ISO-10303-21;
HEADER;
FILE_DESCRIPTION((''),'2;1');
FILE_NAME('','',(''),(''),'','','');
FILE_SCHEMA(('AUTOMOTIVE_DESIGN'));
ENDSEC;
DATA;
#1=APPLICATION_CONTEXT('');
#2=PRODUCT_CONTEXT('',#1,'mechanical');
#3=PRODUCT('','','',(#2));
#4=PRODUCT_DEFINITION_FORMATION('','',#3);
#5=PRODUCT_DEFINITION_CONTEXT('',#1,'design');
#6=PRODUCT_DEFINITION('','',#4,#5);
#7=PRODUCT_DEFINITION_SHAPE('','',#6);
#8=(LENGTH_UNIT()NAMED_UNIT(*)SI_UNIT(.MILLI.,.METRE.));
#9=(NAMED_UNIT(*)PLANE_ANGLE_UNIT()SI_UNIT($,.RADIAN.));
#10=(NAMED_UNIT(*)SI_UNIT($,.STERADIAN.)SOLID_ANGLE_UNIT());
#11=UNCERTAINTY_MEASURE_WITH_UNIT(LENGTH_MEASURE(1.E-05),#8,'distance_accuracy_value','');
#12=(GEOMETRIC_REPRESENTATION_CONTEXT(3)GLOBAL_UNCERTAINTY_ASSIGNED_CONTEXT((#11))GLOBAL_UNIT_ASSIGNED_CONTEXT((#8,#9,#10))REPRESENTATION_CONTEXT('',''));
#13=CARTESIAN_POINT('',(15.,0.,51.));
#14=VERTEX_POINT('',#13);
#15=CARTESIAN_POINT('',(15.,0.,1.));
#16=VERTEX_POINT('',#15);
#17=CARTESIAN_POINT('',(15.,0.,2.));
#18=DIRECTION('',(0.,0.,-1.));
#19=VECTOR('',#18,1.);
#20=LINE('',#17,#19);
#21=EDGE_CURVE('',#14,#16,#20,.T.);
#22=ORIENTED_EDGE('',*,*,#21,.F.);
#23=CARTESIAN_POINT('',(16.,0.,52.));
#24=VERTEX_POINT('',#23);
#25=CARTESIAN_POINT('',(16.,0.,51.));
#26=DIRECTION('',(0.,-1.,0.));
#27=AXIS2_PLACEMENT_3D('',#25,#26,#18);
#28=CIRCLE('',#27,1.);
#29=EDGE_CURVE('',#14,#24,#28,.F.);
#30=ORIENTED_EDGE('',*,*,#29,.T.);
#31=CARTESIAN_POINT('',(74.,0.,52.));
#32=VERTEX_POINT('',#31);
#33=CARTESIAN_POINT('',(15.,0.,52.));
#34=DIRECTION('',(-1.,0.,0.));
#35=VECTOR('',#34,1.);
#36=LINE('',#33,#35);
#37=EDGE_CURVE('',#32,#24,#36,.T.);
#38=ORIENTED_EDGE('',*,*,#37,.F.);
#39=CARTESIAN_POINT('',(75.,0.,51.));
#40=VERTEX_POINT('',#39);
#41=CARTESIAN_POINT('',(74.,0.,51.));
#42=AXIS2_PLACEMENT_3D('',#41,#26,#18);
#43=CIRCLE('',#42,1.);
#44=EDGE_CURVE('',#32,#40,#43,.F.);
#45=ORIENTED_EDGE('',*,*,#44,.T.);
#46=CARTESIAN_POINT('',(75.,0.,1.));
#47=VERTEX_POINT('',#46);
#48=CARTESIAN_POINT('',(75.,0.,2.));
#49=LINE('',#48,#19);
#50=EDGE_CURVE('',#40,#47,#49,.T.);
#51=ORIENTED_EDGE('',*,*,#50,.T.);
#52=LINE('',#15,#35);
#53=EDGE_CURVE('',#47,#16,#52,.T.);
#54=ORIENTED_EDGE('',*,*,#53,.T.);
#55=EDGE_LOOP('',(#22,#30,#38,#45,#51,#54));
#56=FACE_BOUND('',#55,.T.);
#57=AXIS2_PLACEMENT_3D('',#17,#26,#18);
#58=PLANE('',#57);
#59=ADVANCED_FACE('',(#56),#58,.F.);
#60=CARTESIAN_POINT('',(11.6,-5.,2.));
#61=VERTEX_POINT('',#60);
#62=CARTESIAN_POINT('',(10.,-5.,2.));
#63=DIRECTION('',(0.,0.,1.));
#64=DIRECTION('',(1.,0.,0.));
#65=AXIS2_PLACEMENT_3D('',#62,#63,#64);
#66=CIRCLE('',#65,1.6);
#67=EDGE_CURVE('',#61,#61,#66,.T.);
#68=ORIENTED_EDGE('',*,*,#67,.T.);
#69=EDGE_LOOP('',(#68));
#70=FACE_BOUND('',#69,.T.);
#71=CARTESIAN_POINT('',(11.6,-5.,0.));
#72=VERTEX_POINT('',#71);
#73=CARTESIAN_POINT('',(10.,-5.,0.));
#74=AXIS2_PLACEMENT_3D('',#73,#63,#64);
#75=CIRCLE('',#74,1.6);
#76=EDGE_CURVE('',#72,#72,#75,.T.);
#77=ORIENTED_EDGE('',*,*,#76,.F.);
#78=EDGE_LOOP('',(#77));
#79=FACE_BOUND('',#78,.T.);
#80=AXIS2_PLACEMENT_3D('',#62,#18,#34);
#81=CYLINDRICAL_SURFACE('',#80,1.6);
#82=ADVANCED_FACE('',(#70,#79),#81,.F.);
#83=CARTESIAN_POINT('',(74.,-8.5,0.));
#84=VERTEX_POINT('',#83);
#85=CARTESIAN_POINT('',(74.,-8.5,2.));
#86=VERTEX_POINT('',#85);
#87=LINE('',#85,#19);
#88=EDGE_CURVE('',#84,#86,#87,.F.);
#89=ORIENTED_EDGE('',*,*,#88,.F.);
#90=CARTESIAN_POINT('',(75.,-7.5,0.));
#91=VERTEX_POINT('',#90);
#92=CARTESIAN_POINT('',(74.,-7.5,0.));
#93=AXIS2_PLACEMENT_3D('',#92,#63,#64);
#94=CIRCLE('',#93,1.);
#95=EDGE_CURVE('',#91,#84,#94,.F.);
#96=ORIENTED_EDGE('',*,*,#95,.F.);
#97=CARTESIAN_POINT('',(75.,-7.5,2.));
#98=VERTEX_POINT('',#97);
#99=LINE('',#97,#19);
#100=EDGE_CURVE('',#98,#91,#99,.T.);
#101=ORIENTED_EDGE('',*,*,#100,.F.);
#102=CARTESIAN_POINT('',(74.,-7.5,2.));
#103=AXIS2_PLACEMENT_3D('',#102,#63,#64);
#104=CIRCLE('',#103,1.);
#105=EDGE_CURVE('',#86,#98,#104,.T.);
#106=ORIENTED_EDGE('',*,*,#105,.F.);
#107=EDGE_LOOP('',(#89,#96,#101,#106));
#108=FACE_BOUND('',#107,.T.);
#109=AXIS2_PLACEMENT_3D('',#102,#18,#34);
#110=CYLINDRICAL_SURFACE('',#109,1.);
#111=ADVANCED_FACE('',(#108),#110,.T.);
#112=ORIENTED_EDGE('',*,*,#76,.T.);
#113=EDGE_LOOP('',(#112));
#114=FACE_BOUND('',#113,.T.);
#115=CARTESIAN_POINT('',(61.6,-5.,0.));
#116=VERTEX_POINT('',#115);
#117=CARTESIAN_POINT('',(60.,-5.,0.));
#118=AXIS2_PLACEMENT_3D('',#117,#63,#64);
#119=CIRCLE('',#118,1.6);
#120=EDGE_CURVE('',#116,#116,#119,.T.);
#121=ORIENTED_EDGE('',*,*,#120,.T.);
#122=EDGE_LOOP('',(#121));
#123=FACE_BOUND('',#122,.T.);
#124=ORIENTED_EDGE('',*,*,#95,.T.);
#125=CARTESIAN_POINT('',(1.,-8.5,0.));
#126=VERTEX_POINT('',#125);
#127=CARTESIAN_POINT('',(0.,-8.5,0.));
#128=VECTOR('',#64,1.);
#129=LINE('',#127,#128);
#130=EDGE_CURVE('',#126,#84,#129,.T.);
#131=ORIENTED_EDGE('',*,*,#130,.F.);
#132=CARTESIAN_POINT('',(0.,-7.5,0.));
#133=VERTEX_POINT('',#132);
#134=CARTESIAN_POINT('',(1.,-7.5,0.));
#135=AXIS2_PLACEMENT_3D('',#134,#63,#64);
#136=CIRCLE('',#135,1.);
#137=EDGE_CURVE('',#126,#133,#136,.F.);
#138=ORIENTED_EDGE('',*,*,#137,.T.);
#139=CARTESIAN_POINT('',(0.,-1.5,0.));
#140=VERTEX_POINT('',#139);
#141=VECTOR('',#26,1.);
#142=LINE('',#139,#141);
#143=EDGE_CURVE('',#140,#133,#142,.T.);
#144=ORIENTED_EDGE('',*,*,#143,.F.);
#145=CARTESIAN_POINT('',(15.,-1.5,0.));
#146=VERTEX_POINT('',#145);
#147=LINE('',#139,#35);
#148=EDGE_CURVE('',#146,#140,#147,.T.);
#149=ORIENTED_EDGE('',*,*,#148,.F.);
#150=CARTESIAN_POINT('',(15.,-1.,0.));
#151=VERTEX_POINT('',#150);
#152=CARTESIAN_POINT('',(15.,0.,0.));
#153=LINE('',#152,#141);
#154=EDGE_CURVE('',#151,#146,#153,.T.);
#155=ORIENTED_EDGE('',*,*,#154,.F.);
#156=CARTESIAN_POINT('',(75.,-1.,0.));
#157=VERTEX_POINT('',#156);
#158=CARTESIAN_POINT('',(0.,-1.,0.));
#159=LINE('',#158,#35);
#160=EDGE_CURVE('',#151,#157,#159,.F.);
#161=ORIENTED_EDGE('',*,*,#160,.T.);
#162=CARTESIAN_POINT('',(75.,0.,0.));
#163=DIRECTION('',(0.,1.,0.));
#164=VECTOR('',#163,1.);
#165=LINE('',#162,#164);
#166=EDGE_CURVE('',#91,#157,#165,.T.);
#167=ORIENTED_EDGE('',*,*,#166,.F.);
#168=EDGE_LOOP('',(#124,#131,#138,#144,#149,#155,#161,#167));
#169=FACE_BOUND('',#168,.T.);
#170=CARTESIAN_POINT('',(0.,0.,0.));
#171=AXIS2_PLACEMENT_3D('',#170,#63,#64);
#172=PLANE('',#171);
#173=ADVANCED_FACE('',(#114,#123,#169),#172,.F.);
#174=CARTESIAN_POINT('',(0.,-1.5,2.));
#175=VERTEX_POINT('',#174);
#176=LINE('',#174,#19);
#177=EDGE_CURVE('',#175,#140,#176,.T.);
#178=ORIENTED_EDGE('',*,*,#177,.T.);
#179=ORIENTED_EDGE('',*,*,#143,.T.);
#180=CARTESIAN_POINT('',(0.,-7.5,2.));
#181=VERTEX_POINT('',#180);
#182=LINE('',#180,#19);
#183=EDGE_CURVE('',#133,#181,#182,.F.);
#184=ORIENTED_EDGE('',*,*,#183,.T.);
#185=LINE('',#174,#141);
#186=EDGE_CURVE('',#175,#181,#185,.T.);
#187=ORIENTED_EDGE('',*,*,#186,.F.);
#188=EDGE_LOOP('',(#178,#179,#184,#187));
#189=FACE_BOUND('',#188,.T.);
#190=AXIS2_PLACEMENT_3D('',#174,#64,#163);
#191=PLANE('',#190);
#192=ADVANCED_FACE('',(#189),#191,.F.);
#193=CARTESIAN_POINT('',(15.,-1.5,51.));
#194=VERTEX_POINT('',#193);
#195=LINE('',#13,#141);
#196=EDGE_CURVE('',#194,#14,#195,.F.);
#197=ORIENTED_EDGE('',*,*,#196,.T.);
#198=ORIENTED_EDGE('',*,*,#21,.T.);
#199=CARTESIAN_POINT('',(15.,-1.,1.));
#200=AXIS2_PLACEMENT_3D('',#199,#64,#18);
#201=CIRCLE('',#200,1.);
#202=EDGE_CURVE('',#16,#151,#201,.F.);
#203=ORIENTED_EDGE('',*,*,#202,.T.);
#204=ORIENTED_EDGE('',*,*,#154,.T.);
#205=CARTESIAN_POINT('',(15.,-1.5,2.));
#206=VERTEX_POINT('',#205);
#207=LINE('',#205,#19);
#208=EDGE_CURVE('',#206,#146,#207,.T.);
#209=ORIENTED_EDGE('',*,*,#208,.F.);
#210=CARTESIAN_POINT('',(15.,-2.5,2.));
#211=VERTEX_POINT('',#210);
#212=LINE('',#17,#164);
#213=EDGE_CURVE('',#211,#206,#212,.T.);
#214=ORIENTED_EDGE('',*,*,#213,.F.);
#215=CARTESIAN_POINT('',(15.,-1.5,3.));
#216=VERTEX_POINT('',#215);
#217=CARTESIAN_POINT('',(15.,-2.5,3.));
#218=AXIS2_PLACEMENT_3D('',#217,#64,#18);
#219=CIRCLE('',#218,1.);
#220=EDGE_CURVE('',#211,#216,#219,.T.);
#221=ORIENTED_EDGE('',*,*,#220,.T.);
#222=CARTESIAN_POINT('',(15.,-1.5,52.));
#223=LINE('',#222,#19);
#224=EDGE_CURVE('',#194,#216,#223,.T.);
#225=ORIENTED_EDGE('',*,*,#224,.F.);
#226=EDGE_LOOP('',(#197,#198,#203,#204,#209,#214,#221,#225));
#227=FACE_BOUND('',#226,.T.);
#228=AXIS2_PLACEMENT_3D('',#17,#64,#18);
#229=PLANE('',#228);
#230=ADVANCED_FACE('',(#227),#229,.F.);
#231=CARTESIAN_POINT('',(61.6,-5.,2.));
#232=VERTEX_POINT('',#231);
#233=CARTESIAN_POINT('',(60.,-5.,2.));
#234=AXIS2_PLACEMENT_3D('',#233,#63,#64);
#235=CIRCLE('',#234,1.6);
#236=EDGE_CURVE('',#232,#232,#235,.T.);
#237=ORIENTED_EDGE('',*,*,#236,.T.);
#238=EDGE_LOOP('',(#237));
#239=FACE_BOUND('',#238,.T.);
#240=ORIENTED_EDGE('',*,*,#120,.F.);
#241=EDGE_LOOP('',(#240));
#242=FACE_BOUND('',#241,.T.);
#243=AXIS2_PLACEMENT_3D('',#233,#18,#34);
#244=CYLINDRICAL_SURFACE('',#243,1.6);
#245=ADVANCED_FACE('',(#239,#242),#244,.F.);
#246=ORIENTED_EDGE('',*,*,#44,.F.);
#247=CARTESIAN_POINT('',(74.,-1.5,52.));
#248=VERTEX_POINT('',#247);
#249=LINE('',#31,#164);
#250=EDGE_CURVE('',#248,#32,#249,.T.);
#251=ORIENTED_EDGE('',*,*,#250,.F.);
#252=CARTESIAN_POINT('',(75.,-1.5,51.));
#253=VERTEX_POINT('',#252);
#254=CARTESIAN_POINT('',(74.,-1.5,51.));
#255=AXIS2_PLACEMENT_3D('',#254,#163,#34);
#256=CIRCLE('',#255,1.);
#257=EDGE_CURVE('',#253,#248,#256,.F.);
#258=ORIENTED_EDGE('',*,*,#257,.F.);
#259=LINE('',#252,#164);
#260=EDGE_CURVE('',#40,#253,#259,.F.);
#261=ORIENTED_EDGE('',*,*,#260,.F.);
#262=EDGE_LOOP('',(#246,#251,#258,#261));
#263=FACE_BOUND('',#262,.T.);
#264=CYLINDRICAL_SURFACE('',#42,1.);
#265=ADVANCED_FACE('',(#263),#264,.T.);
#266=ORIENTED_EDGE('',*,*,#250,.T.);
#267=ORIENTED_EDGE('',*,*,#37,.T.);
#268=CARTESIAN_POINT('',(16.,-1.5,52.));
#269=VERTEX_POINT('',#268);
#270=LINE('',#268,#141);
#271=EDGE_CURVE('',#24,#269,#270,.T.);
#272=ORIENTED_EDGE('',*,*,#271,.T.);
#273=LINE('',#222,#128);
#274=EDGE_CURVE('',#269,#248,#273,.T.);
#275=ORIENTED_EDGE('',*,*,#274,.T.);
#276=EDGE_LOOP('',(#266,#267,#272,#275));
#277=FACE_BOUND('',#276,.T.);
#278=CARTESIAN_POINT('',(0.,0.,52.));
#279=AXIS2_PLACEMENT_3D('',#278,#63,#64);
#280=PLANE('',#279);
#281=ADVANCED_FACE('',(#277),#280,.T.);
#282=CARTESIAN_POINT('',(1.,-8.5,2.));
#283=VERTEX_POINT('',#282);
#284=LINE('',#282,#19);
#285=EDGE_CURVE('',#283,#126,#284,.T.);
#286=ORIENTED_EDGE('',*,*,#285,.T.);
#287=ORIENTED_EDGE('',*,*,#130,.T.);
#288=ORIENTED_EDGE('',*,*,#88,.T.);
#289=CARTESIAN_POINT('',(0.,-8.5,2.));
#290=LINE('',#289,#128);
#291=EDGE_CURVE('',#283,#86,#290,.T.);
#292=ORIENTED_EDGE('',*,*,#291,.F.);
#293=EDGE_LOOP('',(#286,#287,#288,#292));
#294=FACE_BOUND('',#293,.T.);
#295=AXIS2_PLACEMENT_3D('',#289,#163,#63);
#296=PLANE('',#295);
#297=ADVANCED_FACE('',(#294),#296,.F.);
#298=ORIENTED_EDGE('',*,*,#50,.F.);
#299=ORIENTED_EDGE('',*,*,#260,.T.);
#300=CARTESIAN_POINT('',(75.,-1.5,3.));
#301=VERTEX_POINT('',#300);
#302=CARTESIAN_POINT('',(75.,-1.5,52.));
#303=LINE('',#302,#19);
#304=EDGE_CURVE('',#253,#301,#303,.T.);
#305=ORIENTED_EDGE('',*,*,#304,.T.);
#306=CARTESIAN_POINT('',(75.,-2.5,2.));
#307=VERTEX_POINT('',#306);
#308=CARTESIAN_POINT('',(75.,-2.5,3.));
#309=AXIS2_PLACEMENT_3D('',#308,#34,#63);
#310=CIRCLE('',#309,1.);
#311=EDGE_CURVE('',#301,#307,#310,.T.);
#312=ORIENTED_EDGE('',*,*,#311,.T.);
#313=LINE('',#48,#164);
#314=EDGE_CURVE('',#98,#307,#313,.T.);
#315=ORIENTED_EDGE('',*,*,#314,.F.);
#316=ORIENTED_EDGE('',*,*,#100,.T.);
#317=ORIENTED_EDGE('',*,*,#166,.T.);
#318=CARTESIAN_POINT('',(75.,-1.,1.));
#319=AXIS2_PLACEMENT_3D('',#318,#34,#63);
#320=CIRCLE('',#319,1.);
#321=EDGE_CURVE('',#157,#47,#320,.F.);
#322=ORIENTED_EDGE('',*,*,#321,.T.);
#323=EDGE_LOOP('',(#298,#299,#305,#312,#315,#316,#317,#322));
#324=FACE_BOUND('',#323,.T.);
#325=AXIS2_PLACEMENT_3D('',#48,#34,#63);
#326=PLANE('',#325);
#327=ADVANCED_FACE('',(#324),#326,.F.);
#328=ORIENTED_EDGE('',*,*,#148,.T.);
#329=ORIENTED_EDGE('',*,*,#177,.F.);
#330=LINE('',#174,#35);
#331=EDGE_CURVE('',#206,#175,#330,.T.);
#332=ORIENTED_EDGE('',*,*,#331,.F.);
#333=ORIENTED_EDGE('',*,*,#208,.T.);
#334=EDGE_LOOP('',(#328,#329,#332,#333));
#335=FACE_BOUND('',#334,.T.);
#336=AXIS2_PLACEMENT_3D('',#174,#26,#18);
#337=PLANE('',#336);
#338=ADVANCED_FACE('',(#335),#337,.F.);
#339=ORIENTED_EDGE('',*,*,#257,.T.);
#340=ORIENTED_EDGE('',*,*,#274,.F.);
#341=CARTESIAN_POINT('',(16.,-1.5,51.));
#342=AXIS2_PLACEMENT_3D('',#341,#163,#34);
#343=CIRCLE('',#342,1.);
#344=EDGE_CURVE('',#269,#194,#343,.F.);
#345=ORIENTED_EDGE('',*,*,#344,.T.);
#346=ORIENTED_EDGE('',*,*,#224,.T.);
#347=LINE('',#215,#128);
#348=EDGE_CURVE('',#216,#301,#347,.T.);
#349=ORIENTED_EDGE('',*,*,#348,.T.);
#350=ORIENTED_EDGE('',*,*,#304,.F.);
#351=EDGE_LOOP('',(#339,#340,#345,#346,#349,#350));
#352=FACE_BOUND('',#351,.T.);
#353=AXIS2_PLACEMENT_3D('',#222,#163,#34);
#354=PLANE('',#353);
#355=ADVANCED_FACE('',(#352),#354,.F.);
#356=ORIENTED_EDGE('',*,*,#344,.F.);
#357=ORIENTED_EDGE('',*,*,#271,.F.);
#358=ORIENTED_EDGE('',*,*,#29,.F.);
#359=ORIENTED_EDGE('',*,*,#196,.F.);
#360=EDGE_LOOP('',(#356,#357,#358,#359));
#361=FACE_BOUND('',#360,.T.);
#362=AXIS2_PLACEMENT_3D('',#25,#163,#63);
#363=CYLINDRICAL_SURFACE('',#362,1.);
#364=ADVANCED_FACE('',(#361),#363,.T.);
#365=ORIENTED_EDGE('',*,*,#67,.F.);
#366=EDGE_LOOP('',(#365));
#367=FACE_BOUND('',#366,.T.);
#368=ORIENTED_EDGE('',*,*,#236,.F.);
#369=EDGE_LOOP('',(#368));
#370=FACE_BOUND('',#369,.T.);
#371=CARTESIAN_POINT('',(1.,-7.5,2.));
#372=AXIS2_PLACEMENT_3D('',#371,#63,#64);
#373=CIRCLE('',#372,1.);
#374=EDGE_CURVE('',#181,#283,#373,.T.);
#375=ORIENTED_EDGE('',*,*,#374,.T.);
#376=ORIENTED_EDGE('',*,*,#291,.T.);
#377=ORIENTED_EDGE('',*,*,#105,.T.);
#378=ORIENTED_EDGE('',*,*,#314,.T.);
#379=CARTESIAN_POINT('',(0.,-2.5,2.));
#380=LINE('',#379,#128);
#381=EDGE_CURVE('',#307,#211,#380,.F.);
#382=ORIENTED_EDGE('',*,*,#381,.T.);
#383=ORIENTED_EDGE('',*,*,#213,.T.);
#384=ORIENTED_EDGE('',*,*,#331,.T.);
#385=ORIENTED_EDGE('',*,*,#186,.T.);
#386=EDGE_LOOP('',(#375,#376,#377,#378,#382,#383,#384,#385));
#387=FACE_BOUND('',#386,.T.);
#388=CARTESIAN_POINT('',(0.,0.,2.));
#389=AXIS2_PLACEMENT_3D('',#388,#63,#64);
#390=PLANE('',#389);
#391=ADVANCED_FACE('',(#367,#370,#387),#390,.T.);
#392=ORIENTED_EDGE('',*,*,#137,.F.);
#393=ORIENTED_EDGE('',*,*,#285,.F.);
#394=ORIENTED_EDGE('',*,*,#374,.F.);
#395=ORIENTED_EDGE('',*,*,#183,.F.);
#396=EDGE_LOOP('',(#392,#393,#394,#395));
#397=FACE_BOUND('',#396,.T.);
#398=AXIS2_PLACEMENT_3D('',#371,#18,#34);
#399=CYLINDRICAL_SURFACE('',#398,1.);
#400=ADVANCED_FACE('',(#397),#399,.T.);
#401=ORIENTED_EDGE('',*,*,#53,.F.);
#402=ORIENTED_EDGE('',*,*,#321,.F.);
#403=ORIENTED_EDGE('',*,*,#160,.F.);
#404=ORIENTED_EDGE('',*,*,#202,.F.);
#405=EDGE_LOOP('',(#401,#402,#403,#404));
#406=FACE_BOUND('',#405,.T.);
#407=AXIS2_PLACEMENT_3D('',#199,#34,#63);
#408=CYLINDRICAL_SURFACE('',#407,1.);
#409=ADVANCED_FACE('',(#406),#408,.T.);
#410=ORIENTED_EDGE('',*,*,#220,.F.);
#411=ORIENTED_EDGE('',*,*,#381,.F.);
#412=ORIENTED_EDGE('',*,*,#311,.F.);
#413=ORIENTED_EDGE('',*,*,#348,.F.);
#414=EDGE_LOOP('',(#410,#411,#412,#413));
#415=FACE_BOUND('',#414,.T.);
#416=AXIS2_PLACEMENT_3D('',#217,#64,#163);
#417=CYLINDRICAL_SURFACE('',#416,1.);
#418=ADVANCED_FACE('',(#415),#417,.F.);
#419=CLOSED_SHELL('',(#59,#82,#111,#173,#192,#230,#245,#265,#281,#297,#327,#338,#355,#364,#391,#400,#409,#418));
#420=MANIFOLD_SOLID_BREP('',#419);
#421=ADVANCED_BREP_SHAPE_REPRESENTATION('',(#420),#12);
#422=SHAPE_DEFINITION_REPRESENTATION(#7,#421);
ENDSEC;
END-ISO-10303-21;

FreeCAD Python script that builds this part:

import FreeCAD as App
import Part
import Sketcher


def edges_at(feature, points):
    """Names of the edges that pass closest to the given points."""
    edges = feature.Shape.Edges
    near = lambda p: min(range(len(edges)), key=lambda i: edges[i].distToShape(Part.Vertex(*p))[0])
    return sorted({f"Edge{near(p) + 1}" for p in points})

doc = App.newDocument("Part")
body = doc.addObject("PartDesign::Body", "Body")

sketch1 = body.newObject("Sketcher::SketchObject", "Sketch")
sketch1.AttachmentSupport = (doc.getObject("XY_Plane"), [""])
sketch1.MapMode = "FlatFace"
sketch1.addGeometry([
    Part.LineSegment(App.Vector(75, 0, 0), App.Vector(15, 0, 0)),
    Part.LineSegment(App.Vector(15, 0, 0), App.Vector(15, -1.5, 0)),
    Part.LineSegment(App.Vector(15, -1.5, 0), App.Vector(0, -1.5, 0)),
    Part.LineSegment(App.Vector(0, -1.5, 0), App.Vector(0, -8.5, 0)),
    Part.LineSegment(App.Vector(0, -8.5, 0), App.Vector(75, -8.5, 0)),
    Part.LineSegment(App.Vector(75, -8.5, 0), App.Vector(75, 0, 0)),
    Part.Circle(App.Vector(60, -5, 0), App.Vector(0, 0, 1), 1.6),
    Part.Circle(App.Vector(10, -5, 0), App.Vector(0, 0, 1), 1.6),
], False)
sketch1.addConstraint([
    Sketcher.Constraint("Coincident", 0, 2, 1, 1),
    Sketcher.Constraint("Coincident", 1, 2, 2, 1),
    Sketcher.Constraint("Coincident", 2, 2, 3, 1),
    Sketcher.Constraint("Coincident", 3, 2, 4, 1),
    Sketcher.Constraint("Coincident", 4, 2, 5, 1),
    Sketcher.Constraint("Coincident", 5, 2, 0, 1),
    Sketcher.Constraint("Horizontal", 0),
    Sketcher.Constraint("Vertical", 1),
    Sketcher.Constraint("Horizontal", 2),
    Sketcher.Constraint("Vertical", 3),
    Sketcher.Constraint("Horizontal", 4),
    Sketcher.Constraint("Vertical", 5),
    Sketcher.Constraint("Equal", 6, 7),
    Sketcher.Constraint("PointOnObject", 0, 2, -1),
    Sketcher.Constraint("PointOnObject", 2, 2, -2),
    Sketcher.Constraint("Horizontal", 6, 3, 7, 3),
    Sketcher.Constraint("Diameter", 6, 3.2),
    Sketcher.Constraint("DistanceX", 0, 2, 0, 1, 60.0),
    Sketcher.Constraint("DistanceX", 2, 2, 2, 1, 15.0),
    Sketcher.Constraint("DistanceY", 3, 2, 3, 1, 7.0),
    Sketcher.Constraint("DistanceY", 1, 2, 1, 1, 1.5),
    Sketcher.Constraint("DistanceX", -1, 1, 6, 3, 60.0),
    Sketcher.Constraint("DistanceY", 6, 3, -1, 1, 5.0),
    Sketcher.Constraint("DistanceX", -1, 1, 7, 3, 10.0),
])
pad1 = body.newObject("PartDesign::Pad", "Pad")
pad1.Profile = sketch1
pad1.Length = 2

sketch2 = body.newObject("Sketcher::SketchObject", "Sketch001")
sketch2.AttachmentSupport = (doc.getObject("XY_Plane"), [""])
sketch2.MapMode = "FlatFace"
sketch2.AttachmentOffset = App.Placement(App.Vector(0, 0, 2), App.Rotation())
sketch2.addGeometry([
    Part.LineSegment(App.Vector(15, 0, 0), App.Vector(15, -1.5, 0)),
    Part.LineSegment(App.Vector(15, -1.5, 0), App.Vector(75, -1.5, 0)),
    Part.LineSegment(App.Vector(75, -1.5, 0), App.Vector(75, 0, 0)),
    Part.LineSegment(App.Vector(75, 0, 0), App.Vector(15, 0, 0)),
], False)
sketch2.addConstraint([
    Sketcher.Constraint("Coincident", 0, 2, 1, 1),
    Sketcher.Constraint("Coincident", 1, 2, 2, 1),
    Sketcher.Constraint("Coincident", 2, 2, 3, 1),
    Sketcher.Constraint("Coincident", 3, 2, 0, 1),
    Sketcher.Constraint("Vertical", 0),
    Sketcher.Constraint("Horizontal", 1),
    Sketcher.Constraint("Vertical", 2),
    Sketcher.Constraint("Horizontal", 3),
    Sketcher.Constraint("PointOnObject", 2, 2, -1),
    Sketcher.Constraint("DistanceX", 1, 1, 1, 2, 60.0),
    Sketcher.Constraint("DistanceY", 0, 2, 0, 1, 1.5),
    Sketcher.Constraint("DistanceX", -1, 1, 0, 2, 15.0),
])
pad2 = body.newObject("PartDesign::Pad", "Pad001")
pad2.Profile = sketch2
pad2.Length = 50
doc.recompute()

fillet = body.newObject("PartDesign::Fillet", "Fillet")
fillet.Base = (pad2, edges_at(pad2, [
    (75, -8.5, 1),
    (0, -8.5, 1),
    (45, -1.5, 2),
    (15, -0.75, 52),
    (75, -0.75, 52),
    (45, 0, 0),
]))
fillet.Radius = 1

doc.recompute()
